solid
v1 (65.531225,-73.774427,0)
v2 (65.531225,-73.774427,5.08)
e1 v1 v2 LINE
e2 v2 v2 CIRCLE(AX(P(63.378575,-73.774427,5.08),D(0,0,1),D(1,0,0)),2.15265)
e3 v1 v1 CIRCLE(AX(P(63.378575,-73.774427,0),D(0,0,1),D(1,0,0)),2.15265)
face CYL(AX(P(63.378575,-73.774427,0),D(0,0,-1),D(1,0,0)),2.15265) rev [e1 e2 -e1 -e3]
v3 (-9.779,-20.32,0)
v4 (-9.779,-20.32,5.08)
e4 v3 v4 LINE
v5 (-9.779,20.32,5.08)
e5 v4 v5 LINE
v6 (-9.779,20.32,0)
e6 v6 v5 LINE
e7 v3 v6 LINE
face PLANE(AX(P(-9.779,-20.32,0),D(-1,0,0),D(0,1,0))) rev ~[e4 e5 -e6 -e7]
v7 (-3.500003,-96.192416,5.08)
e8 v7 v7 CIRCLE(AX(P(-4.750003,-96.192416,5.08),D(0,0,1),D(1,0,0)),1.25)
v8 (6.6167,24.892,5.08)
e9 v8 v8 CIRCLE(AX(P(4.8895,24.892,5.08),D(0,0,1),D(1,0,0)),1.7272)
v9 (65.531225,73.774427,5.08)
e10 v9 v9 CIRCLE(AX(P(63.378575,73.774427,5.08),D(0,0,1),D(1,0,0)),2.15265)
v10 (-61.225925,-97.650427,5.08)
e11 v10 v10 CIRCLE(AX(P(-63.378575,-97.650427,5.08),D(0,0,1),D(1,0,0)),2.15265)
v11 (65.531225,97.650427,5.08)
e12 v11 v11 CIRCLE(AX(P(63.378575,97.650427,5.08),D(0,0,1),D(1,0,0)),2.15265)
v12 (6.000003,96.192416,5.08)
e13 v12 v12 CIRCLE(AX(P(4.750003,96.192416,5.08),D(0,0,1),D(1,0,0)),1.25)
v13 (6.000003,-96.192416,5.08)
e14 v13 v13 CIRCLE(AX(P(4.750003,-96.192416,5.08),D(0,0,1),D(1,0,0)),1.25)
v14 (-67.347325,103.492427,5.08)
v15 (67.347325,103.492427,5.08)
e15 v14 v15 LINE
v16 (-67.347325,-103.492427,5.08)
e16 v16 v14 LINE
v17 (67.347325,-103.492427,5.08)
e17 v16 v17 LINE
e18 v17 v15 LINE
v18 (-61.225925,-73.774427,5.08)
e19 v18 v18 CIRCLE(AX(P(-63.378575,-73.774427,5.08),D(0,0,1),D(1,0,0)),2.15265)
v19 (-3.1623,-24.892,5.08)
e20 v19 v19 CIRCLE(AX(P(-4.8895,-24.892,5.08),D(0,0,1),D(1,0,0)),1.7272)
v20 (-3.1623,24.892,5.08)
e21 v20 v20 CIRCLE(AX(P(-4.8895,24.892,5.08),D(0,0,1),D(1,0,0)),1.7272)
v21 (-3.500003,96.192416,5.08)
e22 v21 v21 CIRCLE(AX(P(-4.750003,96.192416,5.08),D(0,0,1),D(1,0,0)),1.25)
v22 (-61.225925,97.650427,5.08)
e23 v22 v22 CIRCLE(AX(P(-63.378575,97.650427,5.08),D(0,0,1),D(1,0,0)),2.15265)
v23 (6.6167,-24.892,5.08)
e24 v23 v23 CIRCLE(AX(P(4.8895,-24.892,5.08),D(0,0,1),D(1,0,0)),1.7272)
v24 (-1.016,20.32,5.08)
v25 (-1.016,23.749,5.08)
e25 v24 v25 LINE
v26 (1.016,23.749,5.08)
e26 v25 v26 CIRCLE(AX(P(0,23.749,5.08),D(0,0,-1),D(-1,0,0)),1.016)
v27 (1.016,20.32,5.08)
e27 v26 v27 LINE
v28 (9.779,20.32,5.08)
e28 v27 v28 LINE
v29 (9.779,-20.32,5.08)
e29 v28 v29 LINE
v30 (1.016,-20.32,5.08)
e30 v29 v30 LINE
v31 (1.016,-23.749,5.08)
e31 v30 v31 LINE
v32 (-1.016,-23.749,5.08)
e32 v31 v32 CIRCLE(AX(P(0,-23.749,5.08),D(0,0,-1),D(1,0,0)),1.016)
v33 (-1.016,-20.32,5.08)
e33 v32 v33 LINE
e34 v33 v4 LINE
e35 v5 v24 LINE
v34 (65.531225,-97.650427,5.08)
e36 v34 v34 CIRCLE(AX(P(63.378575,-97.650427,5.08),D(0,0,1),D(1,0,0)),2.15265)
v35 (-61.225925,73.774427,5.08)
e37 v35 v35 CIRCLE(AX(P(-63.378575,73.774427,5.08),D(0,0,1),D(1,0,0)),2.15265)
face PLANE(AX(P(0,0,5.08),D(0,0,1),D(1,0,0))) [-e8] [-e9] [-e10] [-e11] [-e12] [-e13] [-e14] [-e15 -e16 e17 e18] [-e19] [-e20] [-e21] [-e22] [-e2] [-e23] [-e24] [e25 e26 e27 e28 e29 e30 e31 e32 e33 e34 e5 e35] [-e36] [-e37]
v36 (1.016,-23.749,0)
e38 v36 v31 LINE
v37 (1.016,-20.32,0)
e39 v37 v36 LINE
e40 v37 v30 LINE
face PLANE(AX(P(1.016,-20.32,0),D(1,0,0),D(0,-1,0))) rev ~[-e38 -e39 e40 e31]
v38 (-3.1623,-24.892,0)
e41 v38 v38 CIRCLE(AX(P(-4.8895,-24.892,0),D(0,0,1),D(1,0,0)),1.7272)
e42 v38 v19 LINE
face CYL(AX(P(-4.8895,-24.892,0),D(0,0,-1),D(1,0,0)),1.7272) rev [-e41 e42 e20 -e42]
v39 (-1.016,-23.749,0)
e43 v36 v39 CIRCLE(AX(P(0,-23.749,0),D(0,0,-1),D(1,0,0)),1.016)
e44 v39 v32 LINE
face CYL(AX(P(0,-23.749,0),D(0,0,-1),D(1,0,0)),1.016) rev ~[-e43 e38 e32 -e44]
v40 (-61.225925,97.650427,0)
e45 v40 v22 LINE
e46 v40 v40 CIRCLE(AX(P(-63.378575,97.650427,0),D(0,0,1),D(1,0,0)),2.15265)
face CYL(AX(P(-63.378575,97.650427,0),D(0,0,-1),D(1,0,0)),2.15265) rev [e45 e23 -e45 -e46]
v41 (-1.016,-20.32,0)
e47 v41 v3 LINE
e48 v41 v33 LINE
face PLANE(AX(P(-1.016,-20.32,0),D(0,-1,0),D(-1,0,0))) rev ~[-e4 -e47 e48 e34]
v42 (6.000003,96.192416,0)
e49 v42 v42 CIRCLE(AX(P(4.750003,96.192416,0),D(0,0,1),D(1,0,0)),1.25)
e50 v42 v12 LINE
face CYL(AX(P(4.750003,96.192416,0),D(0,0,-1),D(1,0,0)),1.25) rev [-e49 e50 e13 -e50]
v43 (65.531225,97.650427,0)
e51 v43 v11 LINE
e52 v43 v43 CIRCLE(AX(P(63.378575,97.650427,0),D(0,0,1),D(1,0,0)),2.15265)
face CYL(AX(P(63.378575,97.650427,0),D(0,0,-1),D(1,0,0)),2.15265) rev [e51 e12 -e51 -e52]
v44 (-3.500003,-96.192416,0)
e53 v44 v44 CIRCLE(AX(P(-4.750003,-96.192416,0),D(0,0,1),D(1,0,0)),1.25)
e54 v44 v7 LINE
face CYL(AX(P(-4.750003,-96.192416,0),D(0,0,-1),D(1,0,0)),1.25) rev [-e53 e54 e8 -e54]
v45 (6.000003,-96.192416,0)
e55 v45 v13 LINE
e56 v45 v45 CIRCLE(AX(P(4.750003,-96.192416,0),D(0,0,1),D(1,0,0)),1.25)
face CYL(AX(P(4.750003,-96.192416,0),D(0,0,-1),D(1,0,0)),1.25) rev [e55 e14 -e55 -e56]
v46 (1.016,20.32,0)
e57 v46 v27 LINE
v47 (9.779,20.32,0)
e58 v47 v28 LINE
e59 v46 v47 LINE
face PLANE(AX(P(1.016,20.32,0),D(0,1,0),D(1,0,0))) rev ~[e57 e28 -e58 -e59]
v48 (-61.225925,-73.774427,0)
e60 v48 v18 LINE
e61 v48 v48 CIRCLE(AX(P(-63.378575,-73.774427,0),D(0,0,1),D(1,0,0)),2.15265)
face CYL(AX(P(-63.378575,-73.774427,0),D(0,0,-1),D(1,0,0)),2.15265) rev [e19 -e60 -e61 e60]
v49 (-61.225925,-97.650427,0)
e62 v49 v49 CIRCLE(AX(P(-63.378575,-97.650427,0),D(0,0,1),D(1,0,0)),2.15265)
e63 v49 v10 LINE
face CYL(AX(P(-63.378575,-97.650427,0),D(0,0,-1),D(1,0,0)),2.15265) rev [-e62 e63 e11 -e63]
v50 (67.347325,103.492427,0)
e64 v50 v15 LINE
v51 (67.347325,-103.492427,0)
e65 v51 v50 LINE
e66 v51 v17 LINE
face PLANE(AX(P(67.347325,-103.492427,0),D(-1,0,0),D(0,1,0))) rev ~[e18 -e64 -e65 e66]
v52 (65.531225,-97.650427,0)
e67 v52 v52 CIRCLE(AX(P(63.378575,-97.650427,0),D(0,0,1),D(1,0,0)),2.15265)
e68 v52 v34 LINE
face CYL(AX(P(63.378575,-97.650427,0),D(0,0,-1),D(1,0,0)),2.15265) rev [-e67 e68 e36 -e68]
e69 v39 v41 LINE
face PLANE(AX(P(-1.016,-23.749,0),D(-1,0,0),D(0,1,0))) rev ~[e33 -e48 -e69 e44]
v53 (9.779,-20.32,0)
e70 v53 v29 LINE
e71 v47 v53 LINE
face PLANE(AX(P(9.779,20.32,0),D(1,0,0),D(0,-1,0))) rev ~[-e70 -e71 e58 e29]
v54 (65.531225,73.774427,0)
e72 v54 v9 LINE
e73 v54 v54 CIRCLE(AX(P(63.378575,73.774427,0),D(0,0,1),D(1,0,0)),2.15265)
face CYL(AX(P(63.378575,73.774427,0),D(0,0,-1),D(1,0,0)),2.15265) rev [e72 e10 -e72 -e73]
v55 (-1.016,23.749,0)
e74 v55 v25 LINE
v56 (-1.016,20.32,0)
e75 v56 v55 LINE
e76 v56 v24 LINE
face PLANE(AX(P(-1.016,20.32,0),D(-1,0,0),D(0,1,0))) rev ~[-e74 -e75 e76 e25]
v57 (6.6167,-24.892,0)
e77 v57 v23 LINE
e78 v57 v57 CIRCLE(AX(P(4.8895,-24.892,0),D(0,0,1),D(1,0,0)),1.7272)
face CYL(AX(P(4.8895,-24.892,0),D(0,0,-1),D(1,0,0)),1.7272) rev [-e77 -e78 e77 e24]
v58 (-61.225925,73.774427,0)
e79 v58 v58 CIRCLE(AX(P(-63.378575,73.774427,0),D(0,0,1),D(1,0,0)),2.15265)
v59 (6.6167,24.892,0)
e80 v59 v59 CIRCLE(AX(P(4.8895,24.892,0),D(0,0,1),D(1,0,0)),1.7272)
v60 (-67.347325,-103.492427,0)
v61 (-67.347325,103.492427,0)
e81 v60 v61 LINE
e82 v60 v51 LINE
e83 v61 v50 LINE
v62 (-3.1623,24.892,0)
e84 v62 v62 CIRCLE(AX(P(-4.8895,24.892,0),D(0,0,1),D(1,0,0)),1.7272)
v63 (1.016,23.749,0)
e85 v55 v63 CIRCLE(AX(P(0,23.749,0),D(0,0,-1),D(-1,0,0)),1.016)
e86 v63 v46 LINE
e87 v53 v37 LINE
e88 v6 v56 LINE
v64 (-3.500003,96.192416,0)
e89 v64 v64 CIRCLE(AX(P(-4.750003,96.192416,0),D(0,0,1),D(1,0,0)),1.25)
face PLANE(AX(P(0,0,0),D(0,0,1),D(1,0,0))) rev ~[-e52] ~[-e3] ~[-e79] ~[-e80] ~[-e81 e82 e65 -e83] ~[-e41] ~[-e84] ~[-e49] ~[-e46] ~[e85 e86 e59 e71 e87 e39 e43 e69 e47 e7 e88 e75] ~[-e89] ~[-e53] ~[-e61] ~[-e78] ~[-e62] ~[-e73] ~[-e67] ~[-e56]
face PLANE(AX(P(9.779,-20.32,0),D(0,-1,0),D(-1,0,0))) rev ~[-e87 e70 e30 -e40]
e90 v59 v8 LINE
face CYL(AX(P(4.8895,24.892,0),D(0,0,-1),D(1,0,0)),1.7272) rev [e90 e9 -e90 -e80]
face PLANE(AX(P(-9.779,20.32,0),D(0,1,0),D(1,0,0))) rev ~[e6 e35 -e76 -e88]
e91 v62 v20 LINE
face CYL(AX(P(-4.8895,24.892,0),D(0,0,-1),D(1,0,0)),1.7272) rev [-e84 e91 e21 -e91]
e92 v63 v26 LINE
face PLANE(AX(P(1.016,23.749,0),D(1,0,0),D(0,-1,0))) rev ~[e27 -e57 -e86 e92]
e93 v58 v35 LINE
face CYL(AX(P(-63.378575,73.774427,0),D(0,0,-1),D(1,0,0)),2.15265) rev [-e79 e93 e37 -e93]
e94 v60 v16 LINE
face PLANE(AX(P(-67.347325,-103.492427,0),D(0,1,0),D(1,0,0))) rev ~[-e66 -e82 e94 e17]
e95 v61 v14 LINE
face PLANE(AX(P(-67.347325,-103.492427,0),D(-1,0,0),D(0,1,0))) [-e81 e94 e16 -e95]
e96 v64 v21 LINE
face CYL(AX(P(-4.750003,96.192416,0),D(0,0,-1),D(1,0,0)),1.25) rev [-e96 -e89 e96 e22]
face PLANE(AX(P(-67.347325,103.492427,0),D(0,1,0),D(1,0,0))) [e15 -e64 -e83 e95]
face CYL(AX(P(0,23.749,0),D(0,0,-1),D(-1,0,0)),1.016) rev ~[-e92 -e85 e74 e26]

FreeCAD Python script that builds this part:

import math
import FreeCAD as App
import Part
import Sketcher
Q = App.Units.Quantity

doc = App.newDocument("Part")
body = doc.addObject("PartDesign::Body", "Body")

# Sketch on XY plane
sketch1 = doc.addObject("Sketcher::SketchObject", "Sketch")
body.addObject(sketch1)
sketch1.AttachmentSupport = (doc.XY_Plane, [""])
sketch1.MapMode = "FlatFace"
sketch1.addGeometry(Part.LineSegment(App.Vector(-67.3, 103.5, 0), App.Vector(-67.3, -103.5, 0)), False)
sketch1.addGeometry(Part.LineSegment(App.Vector(-67.3, -103.5, 0), App.Vector(67.3, -103.5, 0)), False)
sketch1.addGeometry(Part.LineSegment(App.Vector(67.3, -103.5, 0), App.Vector(67.3, 103.5, 0)), False)
sketch1.addGeometry(Part.LineSegment(App.Vector(67.3, 103.5, 0), App.Vector(-67.3, 103.5, 0)), False)
sketch1.addGeometry(Part.Circle(App.Vector(-63.4, -97.7, 0), App.Vector(0, 0, 1), 2.2), False)
sketch1.addGeometry(Part.Circle(App.Vector(-63.4, -73.8, 0), App.Vector(0, 0, 1), 2.2), False)
sketch1.addGeometry(Part.Circle(App.Vector(-4.8, -96.2, 0), App.Vector(0, 0, 1), 1.2), False)
sketch1.addGeometry(Part.Circle(App.Vector(-4.9, -24.9, 0), App.Vector(0, 0, 1), 1.7), False)
sketch1.addGeometry(Part.Circle(App.Vector(4.8, -96.2, 0), App.Vector(0, 0, 1), 1.2), False)
sketch1.addGeometry(Part.Circle(App.Vector(63.4, -97.7, 0), App.Vector(0, 0, 1), 2.2), False)
sketch1.addGeometry(Part.Circle(App.Vector(63.4, -73.8, 0), App.Vector(0, 0, 1), 2.2), False)
sketch1.addGeometry(Part.Circle(App.Vector(4.9, -24.9, 0), App.Vector(0, 0, 1), 1.7), False)
sketch1.addGeometry(Part.LineSegment(App.Vector(-1, -23.7, 0), App.Vector(-1, -20.3, 0)), False)
sketch1.addGeometry(Part.LineSegment(App.Vector(-1, -20.3, 0), App.Vector(-9.8, -20.3, 0)), False)
sketch1.addGeometry(Part.LineSegment(App.Vector(-9.8, -20.3, 0), App.Vector(-9.8, 20.3, 0)), False)
sketch1.addGeometry(Part.LineSegment(App.Vector(-9.8, 20.3, 0), App.Vector(-1, 20.3, 0)), False)
sketch1.addGeometry(Part.LineSegment(App.Vector(-1, 20.3, 0), App.Vector(-1, 23.7, 0)), False)
sketch1.addGeometry(Part.ArcOfCircle(Part.Circle(App.Vector(0, 23.7, 0), App.Vector(0, 0, 1), 1), math.radians(0), math.radians(180)), False)
sketch1.addGeometry(Part.LineSegment(App.Vector(1, 23.7, 0), App.Vector(1, 20.3, 0)), False)
sketch1.addGeometry(Part.LineSegment(App.Vector(1, 20.3, 0), App.Vector(9.8, 20.3, 0)), False)
sketch1.addGeometry(Part.LineSegment(App.Vector(9.8, 20.3, 0), App.Vector(9.8, -20.3, 0)), False)
sketch1.addGeometry(Part.LineSegment(App.Vector(9.8, -20.3, 0), App.Vector(1, -20.3, 0)), False)
sketch1.addGeometry(Part.LineSegment(App.Vector(1, -20.3, 0), App.Vector(1, -23.7, 0)), False)
sketch1.addGeometry(Part.ArcOfCircle(Part.Circle(App.Vector(0, -23.7, 0), App.Vector(0, 0, 1), 1), math.radians(180), math.radians(360)), False)
sketch1.addGeometry(Part.Circle(App.Vector(-4.9, 24.9, 0), App.Vector(0, 0, 1), 1.7), False)
sketch1.addGeometry(Part.Circle(App.Vector(-63.4, 73.8, 0), App.Vector(0, 0, 1), 2.2), False)
sketch1.addGeometry(Part.Circle(App.Vector(-63.4, 97.7, 0), App.Vector(0, 0, 1), 2.2), False)
sketch1.addGeometry(Part.Circle(App.Vector(-4.8, 96.2, 0), App.Vector(0, 0, 1), 1.2), False)
sketch1.addGeometry(Part.Circle(App.Vector(4.9, 24.9, 0), App.Vector(0, 0, 1), 1.7), False)
sketch1.addGeometry(Part.Circle(App.Vector(4.8, 96.2, 0), App.Vector(0, 0, 1), 1.2), False)
sketch1.addGeometry(Part.Circle(App.Vector(63.4, 73.8, 0), App.Vector(0, 0, 1), 2.2), False)
sketch1.addGeometry(Part.Circle(App.Vector(63.4, 97.7, 0), App.Vector(0, 0, 1), 2.2), False)
sketch1.addConstraint(Sketcher.Constraint("Coincident", 0, 2, 1, 1))
sketch1.addConstraint(Sketcher.Constraint("Coincident", 1, 2, 2, 1))
sketch1.addConstraint(Sketcher.Constraint("Coincident", 2, 2, 3, 1))
sketch1.addConstraint(Sketcher.Constraint("Coincident", 3, 2, 0, 1))
sketch1.addConstraint(Sketcher.Constraint("Coincident", 12, 2, 13, 1))
sketch1.addConstraint(Sketcher.Constraint("Coincident", 13, 2, 14, 1))
sketch1.addConstraint(Sketcher.Constraint("Coincident", 14, 2, 15, 1))
sketch1.addConstraint(Sketcher.Constraint("Coincident", 15, 2, 16, 1))
sketch1.addConstraint(Sketcher.Constraint("Tangent", 16, 2, 17, 2))
sketch1.addConstraint(Sketcher.Constraint("Tangent", 17, 1, 18, 1))
sketch1.addConstraint(Sketcher.Constraint("Coincident", 18, 2, 19, 1))
sketch1.addConstraint(Sketcher.Constraint("Coincident", 19, 2, 20, 1))
sketch1.addConstraint(Sketcher.Constraint("Coincident", 20, 2, 21, 1))
sketch1.addConstraint(Sketcher.Constraint("Coincident", 21, 2, 22, 1))
sketch1.addConstraint(Sketcher.Constraint("Tangent", 22, 2, 23, 2))
sketch1.addConstraint(Sketcher.Constraint("Tangent", 23, 1, 12, 1))
sketch1.addConstraint(Sketcher.Constraint("Vertical", 0))
sketch1.addConstraint(Sketcher.Constraint("Horizontal", 1))
sketch1.addConstraint(Sketcher.Constraint("Vertical", 2))
sketch1.addConstraint(Sketcher.Constraint("Horizontal", 3))
sketch1.addConstraint(Sketcher.Constraint("Vertical", 12))
sketch1.addConstraint(Sketcher.Constraint("Horizontal", 13))
sketch1.addConstraint(Sketcher.Constraint("Vertical", 14))
sketch1.addConstraint(Sketcher.Constraint("Horizontal", 15))
sketch1.addConstraint(Sketcher.Constraint("Vertical", 16))
sketch1.addConstraint(Sketcher.Constraint("Vertical", 18))
sketch1.addConstraint(Sketcher.Constraint("Horizontal", 19))
sketch1.addConstraint(Sketcher.Constraint("Vertical", 20))
sketch1.addConstraint(Sketcher.Constraint("Horizontal", 21))
sketch1.addConstraint(Sketcher.Constraint("Vertical", 22))
sketch1.addConstraint(Sketcher.Constraint("Equal", 4, 5))
sketch1.addConstraint(Sketcher.Constraint("Equal", 6, 8))
sketch1.addConstraint(Sketcher.Constraint("Equal", 5, 9))
sketch1.addConstraint(Sketcher.Constraint("Equal", 9, 10))
sketch1.addConstraint(Sketcher.Constraint("Equal", 7, 11))
sketch1.addConstraint(Sketcher.Constraint("Equal", 17, 23))
sketch1.addConstraint(Sketcher.Constraint("Equal", 11, 24))
sketch1.addConstraint(Sketcher.Constraint("Equal", 10, 25))
sketch1.addConstraint(Sketcher.Constraint("Equal", 25, 26))
sketch1.addConstraint(Sketcher.Constraint("Equal", 8, 27))
sketch1.addConstraint(Sketcher.Constraint("Equal", 24, 28))
sketch1.addConstraint(Sketcher.Constraint("Equal", 27, 29))
sketch1.addConstraint(Sketcher.Constraint("Equal", 26, 30))
sketch1.addConstraint(Sketcher.Constraint("Equal", 30, 31))
sketch1.addConstraint(Sketcher.Constraint("Symmetric", 17, 3, 23, 3, -1, 1))
sketch1.addConstraint(Sketcher.Constraint("Symmetric", 11, 3, 24, 3, -1, 1))
sketch1.addConstraint(Sketcher.Constraint("Symmetric", 10, 3, 25, 3, -1, 1))
sketch1.addConstraint(Sketcher.Constraint("Symmetric", 9, 3, 26, 3, -1, 1))
sketch1.addConstraint(Sketcher.Constraint("Symmetric", 8, 3, 27, 3, -1, 1))
sketch1.addConstraint(Sketcher.Constraint("Symmetric", 7, 3, 28, 3, -1, 1))
sketch1.addConstraint(Sketcher.Constraint("Symmetric", 6, 3, 29, 3, -1, 1))
sketch1.addConstraint(Sketcher.Constraint("Symmetric", 5, 3, 30, 3, -1, 1))
sketch1.addConstraint(Sketcher.Constraint("Symmetric", 4, 3, 31, 3, -1, 1))
sketch1.addConstraint(Sketcher.Constraint("Symmetric", 0, 2, 2, 2, -1, 1))
sketch1.addConstraint(Sketcher.Constraint("Symmetric", 13, 2, 19, 2, -1, 1))
sketch1.addConstraint(Sketcher.Constraint("Symmetric", 6, 3, 8, 3, -2))
sketch1.addConstraint(Sketcher.Constraint("Symmetric", 4, 3, 9, 3, -2))
sketch1.addConstraint(Sketcher.Constraint("Symmetric", 5, 3, 10, 3, -2))
sketch1.addConstraint(Sketcher.Constraint("Symmetric", 7, 3, 11, 3, -2))
sketch1.addConstraint(Sketcher.Constraint("Symmetric", 15, 2, 18, 2, -2))
sketch1.addConstraint(Sketcher.Constraint("Horizontal", 13, 2, 20, 2))
sketch1.addConstraint(Sketcher.Constraint("Vertical", 4, 3, 5, 3))
sketch1.addConstraint(Sketcher.Constraint("Radius", 17, Q("0.04 in")))
sketch1.addConstraint(Sketcher.Constraint("Diameter", 7, Q("0.136 in")))
sketch1.addConstraint(Sketcher.Constraint("DistanceY", 14, 1, 14, 2, Q("1.6 in")))
sketch1.addConstraint(Sketcher.Constraint("Diameter", 4, Q("0.1695 in")))
sketch1.addConstraint(Sketcher.Constraint("Diameter", 6, Q("2.5 mm")))
sketch1.addConstraint(Sketcher.Constraint("DistanceX", 13, 2, 13, 1, Q("0.345 in")))
sketch1.addConstraint(Sketcher.Constraint("DistanceY", 12, 1, 12, 2, Q("0.135 in")))
sketch1.addConstraint(Sketcher.Constraint("DistanceY", 7, 3, -1, 1, Q("0.98 in")))
sketch1.addConstraint(Sketcher.Constraint("DistanceY", 4, 3, 5, 3, Q("0.94 in")))
sketch1.addConstraint(Sketcher.Constraint("DistanceY", 0, 2, 4, 3, Q("0.23 in")))
sketch1.addConstraint(Sketcher.Constraint("DistanceX", 7, 3, 11, 3, Q("0.385 in")))
sketch1.addConstraint(Sketcher.Constraint("DistanceX", 0, 2, 4, 3, Q("0.15625 in")))
sketch1.addConstraint(Sketcher.Constraint("DistanceX", 1, 1, 1, 2, Q("134.69465 mm")))
sketch1.addConstraint(Sketcher.Constraint("DistanceY", 0, 2, 0, 1, Q("206.984854 mm")))
sketch1.addConstraint(Sketcher.Constraint("DistanceX", 4, 3, 6, 3, Q("58.628572 mm")))
sketch1.addConstraint(Sketcher.Constraint("DistanceY", 4, 3, 6, 3, Q("1.458011 mm")))
pad1 = doc.addObject("PartDesign::Pad", "Pad")
body.addObject(pad1)
pad1.Profile = sketch1
pad1.Length = Q("0.2 in")

doc.recompute()
